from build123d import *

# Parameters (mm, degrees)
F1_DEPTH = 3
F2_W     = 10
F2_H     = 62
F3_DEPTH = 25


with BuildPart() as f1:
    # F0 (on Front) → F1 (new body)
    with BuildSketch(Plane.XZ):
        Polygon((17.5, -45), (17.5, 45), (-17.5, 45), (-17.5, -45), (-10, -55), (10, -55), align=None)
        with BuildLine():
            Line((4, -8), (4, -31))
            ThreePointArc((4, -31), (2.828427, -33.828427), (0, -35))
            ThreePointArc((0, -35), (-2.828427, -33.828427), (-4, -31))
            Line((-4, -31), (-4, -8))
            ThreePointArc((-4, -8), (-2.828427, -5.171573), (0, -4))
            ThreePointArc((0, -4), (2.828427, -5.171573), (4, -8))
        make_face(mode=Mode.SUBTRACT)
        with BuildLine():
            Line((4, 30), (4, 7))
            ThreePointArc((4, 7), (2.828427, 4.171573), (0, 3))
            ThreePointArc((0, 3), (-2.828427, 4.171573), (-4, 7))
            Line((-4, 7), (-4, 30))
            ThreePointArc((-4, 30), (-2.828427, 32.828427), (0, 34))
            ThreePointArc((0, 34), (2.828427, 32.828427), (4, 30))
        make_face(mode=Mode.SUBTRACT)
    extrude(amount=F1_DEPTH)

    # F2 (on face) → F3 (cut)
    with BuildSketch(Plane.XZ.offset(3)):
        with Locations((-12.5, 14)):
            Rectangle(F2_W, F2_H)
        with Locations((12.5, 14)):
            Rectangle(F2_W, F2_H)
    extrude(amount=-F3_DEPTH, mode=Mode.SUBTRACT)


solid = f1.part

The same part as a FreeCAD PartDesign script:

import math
import FreeCAD as App
import Part
import Sketcher
from FreeCAD import Vector


def add_polygon(sketch, points):
    """Adds a closed chain of lines whose ends are joined by coincident constraints."""
    first, n = sketch.GeometryCount, len(points)
    for a, b in zip(points, points[1:] + points[:1]):
        sketch.addGeometry(Part.LineSegment(App.Vector(*a, 0), App.Vector(*b, 0)), False)
    for i in range(n):
        sketch.addConstraint(Sketcher.Constraint("Coincident", first + i, 2, first + (i + 1) % n, 1))

doc = App.newDocument("Part")
params = doc.addObject("Spreadsheet::Sheet", "Params")
for row, (alias, value) in enumerate([
    ("sketch1_radius", "4 mm"),
    ("sketch1_width", "35 mm"),
    ("sketch1_width2", "20 mm"),
    ("sketch1_height", "90 mm"),
    ("sketch1_height2", "23 mm"),
    ("pad1_length", "3 mm"),
    ("sketch2_width", "10 mm"),
    ("sketch2_height", "62 mm"),
    ("pocket1_length", "25 mm"),
], start=1):
    params.set(f"A{row}", alias)
    params.set(f"B{row}", "=" + value)
    params.setAlias(f"B{row}", alias)

body = doc.addObject("PartDesign::Body", "Body")

# Sketch on XZ plane
sketch1 = doc.addObject("Sketcher::SketchObject", "Sketch")
body.addObject(sketch1)
sketch1.AttachmentSupport = (doc.XZ_Plane, [""])
sketch1.MapMode = "FlatFace"
add_polygon(sketch1, [(17.5, -45), (17.5, 45), (-17.5, 45), (-17.5, -45), (-10, -55), (10, -55)])  # lines 0-5
sketch1.addGeometry(Part.ArcOfCircle(Part.Circle(Vector(0, -8, 0), Vector(0, 0, 1), 4), math.radians(0), math.radians(90)), False)  # 6
sketch1.addGeometry(Part.LineSegment(Vector(4, -8, 0), Vector(4, -31, 0)), False)  # 7
sketch1.addGeometry(Part.ArcOfCircle(Part.Circle(Vector(0, -31, 0), Vector(0, 0, 1), 4), math.radians(-90), math.radians(0)), False)  # 8
sketch1.addGeometry(Part.ArcOfCircle(Part.Circle(Vector(0, -31, 0), Vector(0, 0, 1), 4), math.radians(-180), math.radians(-90)), False)  # 9
sketch1.addGeometry(Part.LineSegment(Vector(-4, -31, 0), Vector(-4, -8, 0)), False)  # 10
sketch1.addGeometry(Part.ArcOfCircle(Part.Circle(Vector(0, -8, 0), Vector(0, 0, 1), 4), math.radians(90), math.radians(180)), False)  # 11
sketch1.addGeometry(Part.ArcOfCircle(Part.Circle(Vector(0, 30, 0), Vector(0, 0, 1), 4), math.radians(0), math.radians(90)), False)  # 12
sketch1.addGeometry(Part.LineSegment(Vector(4, 30, 0), Vector(4, 7, 0)), False)  # 13
sketch1.addGeometry(Part.ArcOfCircle(Part.Circle(Vector(0, 7, 0), Vector(0, 0, 1), 4), math.radians(-90), math.radians(0)), False)  # 14
sketch1.addGeometry(Part.ArcOfCircle(Part.Circle(Vector(0, 7, 0), Vector(0, 0, 1), 4), math.radians(-180), math.radians(-90)), False)  # 15
sketch1.addGeometry(Part.LineSegment(Vector(-4, 7, 0), Vector(-4, 30, 0)), False)  # 16
sketch1.addGeometry(Part.ArcOfCircle(Part.Circle(Vector(0, 30, 0), Vector(0, 0, 1), 4), math.radians(90), math.radians(180)), False)  # 17
sketch1.addConstraint([
    Sketcher.Constraint("Tangent", 6, 1, 7, 1),
    Sketcher.Constraint("Tangent", 7, 2, 8, 2),
    Sketcher.Constraint("Tangent", 8, 1, 9, 2),
    Sketcher.Constraint("Tangent", 9, 1, 10, 1),
    Sketcher.Constraint("Tangent", 10, 2, 11, 2),
    Sketcher.Constraint("Tangent", 11, 1, 6, 2),
    Sketcher.Constraint("Tangent", 12, 1, 13, 1),
    Sketcher.Constraint("Tangent", 13, 2, 14, 2),
    Sketcher.Constraint("Tangent", 14, 1, 15, 2),
    Sketcher.Constraint("Tangent", 15, 1, 16, 1),
    Sketcher.Constraint("Tangent", 16, 2, 17, 2),
    Sketcher.Constraint("Tangent", 17, 1, 12, 2),
    Sketcher.Constraint("Vertical", 0),
    Sketcher.Constraint("Horizontal", 1),
    Sketcher.Constraint("Vertical", 2),
    Sketcher.Constraint("Horizontal", 4),
    Sketcher.Constraint("Vertical", 7),
    Sketcher.Constraint("Vertical", 10),
    Sketcher.Constraint("Vertical", 13),
    Sketcher.Constraint("Vertical", 16),
    Sketcher.Constraint("Equal", 6, 8),
    Sketcher.Constraint("Equal", 8, 9),
    Sketcher.Constraint("Equal", 11, 12),
    Sketcher.Constraint("Equal", 12, 14),
    Sketcher.Constraint("Equal", 14, 15),
    Sketcher.Constraint("Symmetric", 0, 2, 2, 2, -1, 1),
    Sketcher.Constraint("PointOnObject", 6, 3, -2),
    Sketcher.Constraint("PointOnObject", 12, 3, -2),
    Sketcher.Constraint("PointOnObject", 8, 1, -2),
    Sketcher.Constraint("PointOnObject", 11, 1, -2),
    Sketcher.Constraint("PointOnObject", 14, 1, -2),
    Sketcher.Constraint("PointOnObject", 17, 1, -2),
    Sketcher.Constraint("Horizontal", 2, 2, 5, 2),
    Sketcher.Constraint("Equal", 10, 13),
    Sketcher.Constraint("Equal", 3, 5),
    Sketcher.Constraint("Radius", 6, 4.0),
    Sketcher.Constraint("DistanceX", 1, 2, 1, 1, 35.0),
    Sketcher.Constraint("DistanceX", 4, 1, 4, 2, 20.0),
    Sketcher.Constraint("DistanceY", 0, 1, 0, 2, 90.0),
    Sketcher.Constraint("DistanceY", 7, 2, 7, 1, 23.0),
    Sketcher.Constraint("DistanceY", 6, 3, -1, 1, 8.0),
    Sketcher.Constraint("DistanceY", -1, 1, 12, 3, 30.0),
    Sketcher.Constraint("DistanceY", 3, 2, -1, 1, 55.0),
])
sketch1.setExpression("Constraints[41]", "Params.sketch1_radius")
sketch1.setExpression("Constraints[42]", "Params.sketch1_width")
sketch1.setExpression("Constraints[43]", "Params.sketch1_width2")
sketch1.setExpression("Constraints[44]", "Params.sketch1_height")
sketch1.setExpression("Constraints[45]", "Params.sketch1_height2")
pad1 = doc.addObject("PartDesign::Pad", "Pad")
body.addObject(pad1)
pad1.Profile = sketch1
pad1.setExpression("Length", "Params.pad1_length")

# Sketch on XZ plane
sketch2 = doc.addObject("Sketcher::SketchObject", "Sketch001")
body.addObject(sketch2)
sketch2.AttachmentSupport = (doc.XZ_Plane, [""])
sketch2.MapMode = "FlatFace"
sketch2.AttachmentOffset = App.Placement(Vector(0, 0, 3), App.Rotation())
add_polygon(sketch2, [(-18, 45), (-18, -17), (-8, -17), (-8, 45)])  # lines 0-3
add_polygon(sketch2, [(8, 45), (8, -17), (18, -17), (18, 45)])  # lines 4-7
sketch2.addConstraint([
    Sketcher.Constraint("Vertical", 0),
    Sketcher.Constraint("Horizontal", 1),
    Sketcher.Constraint("Vertical", 2),
    Sketcher.Constraint("Horizontal", 3),
    Sketcher.Constraint("Vertical", 4),
    Sketcher.Constraint("Horizontal", 5),
    Sketcher.Constraint("Vertical", 6),
    Sketcher.Constraint("Horizontal", 7),
    Sketcher.Constraint("Symmetric", 1, 2, 4, 2, -2),
    Sketcher.Constraint("Symmetric", 3, 2, 6, 2, -2),
    Sketcher.Constraint("DistanceX", 1, 1, 1, 2, 10.0),
    Sketcher.Constraint("DistanceY", 0, 2, 0, 1, 62.0),
    Sketcher.Constraint("DistanceY", 0, 2, -1, 1, 17.0),
    Sketcher.Constraint("DistanceX", 1, 2, 4, 2, 15.0),
])
sketch2.setExpression("Constraints[18]", "Params.sketch2_width")
sketch2.setExpression("Constraints[19]", "Params.sketch2_height")
pocket1 = doc.addObject("PartDesign::Pocket", "Pocket")
body.addObject(pocket1)
pocket1.Profile = sketch2
pocket1.setExpression("Length", "Params.pocket1_length")

doc.recompute()
